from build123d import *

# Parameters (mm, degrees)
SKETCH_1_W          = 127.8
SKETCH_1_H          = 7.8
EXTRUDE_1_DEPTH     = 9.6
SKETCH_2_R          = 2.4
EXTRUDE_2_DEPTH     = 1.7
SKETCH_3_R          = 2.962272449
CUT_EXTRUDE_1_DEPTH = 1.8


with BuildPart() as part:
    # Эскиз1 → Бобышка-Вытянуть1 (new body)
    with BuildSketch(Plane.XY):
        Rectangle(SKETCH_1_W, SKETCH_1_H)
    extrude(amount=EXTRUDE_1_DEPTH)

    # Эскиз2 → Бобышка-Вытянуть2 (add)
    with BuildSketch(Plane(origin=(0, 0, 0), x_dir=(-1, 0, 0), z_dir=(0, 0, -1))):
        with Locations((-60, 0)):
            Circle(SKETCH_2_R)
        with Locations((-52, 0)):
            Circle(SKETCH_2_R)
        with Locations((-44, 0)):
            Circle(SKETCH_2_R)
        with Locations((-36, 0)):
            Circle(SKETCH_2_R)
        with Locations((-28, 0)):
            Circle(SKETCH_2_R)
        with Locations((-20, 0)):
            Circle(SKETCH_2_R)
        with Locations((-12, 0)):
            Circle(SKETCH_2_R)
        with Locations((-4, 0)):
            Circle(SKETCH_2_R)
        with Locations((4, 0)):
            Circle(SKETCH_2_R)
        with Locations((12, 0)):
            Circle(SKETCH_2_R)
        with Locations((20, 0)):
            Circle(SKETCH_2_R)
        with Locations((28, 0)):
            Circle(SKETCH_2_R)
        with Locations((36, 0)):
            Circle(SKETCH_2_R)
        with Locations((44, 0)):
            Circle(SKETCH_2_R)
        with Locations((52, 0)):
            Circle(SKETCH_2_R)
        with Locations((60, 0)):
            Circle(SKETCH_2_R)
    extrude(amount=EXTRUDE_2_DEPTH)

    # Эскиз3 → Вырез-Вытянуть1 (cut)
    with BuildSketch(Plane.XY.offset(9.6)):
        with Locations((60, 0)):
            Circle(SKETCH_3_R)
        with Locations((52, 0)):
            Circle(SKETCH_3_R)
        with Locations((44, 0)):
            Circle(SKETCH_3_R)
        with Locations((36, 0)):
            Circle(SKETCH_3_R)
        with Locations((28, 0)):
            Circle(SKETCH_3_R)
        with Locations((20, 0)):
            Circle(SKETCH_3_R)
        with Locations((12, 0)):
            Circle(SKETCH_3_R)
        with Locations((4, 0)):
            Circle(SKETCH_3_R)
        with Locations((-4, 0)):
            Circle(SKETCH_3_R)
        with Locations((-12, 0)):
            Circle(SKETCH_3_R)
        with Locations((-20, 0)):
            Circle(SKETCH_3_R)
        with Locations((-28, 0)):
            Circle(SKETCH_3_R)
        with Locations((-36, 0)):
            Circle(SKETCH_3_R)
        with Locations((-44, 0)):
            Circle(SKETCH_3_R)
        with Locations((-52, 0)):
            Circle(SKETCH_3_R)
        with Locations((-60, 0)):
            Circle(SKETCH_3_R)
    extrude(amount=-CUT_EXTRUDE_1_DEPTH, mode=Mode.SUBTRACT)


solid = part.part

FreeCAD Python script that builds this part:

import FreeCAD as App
import Part
import Sketcher
from FreeCAD import Vector
Q = App.Units.Quantity


def add_polygon(sketch, points):
    """Adds a closed chain of lines whose ends are joined by coincident constraints."""
    first, n = sketch.GeometryCount, len(points)
    for a, b in zip(points, points[1:] + points[:1]):
        sketch.addGeometry(Part.LineSegment(App.Vector(*a, 0), App.Vector(*b, 0)), False)
    for i in range(n):
        sketch.addConstraint(Sketcher.Constraint("Coincident", first + i, 2, first + (i + 1) % n, 1))

doc = App.newDocument("Part")
params = doc.addObject("Spreadsheet::Sheet", "Params")
for row, (alias, value) in enumerate([
    ("sketch1_width", "127.8 mm"),
    ("sketch1_height", "7.8 mm"),
    ("pad1_length", "9.6 mm"),
    ("sketch2_diameter", "4.8 mm"),
    ("pad2_length", "1.7 mm"),
    ("pocket1_length", "1.8 mm"),
], start=1):
    params.set(f"A{row}", alias)
    params.set(f"B{row}", "=" + value)
    params.setAlias(f"B{row}", alias)

body = doc.addObject("PartDesign::Body", "Body")

# Sketch on XY plane
sketch1 = body.newObject("Sketcher::SketchObject", "Sketch")
sketch1.AttachmentSupport = (doc.getObject("XY_Plane"), [""])
sketch1.MapMode = "FlatFace"
add_polygon(sketch1, [(-64, 4), (-64, -4), (64, -4), (64, 4)])  # lines 0-3
sketch1.addConstraint([
    Sketcher.Constraint("Vertical", 0),
    Sketcher.Constraint("Horizontal", 1),
    Sketcher.Constraint("Vertical", 2),
    Sketcher.Constraint("Horizontal", 3),
    Sketcher.Constraint("Symmetric", 0, 2, 2, 2, -1, 1),
    Sketcher.Constraint("DistanceX", 1, 1, 1, 2, Q("127.8 mm")),
    Sketcher.Constraint("DistanceY", 0, 2, 0, 1, Q("7.8 mm")),
])
sketch1.setExpression("Constraints[9]", "Params.sketch1_width")
sketch1.setExpression("Constraints[10]", "Params.sketch1_height")
pad1 = body.newObject("PartDesign::Pad", "Pad")
pad1.Profile = sketch1
pad1.setExpression("Length", "Params.pad1_length")

# Sketch on XY plane
sketch2 = body.newObject("Sketcher::SketchObject", "Sketch001")
sketch2.AttachmentSupport = (doc.getObject("XY_Plane"), [""])
sketch2.MapMode = "FlatFace"
sketch2.addGeometry([
    Part.Circle(Vector(60, 0, 0), Vector(0, 0, 1), 2.4),  # 0
    Part.Circle(Vector(52, 0, 0), Vector(0, 0, 1), 2.4),  # 1
    Part.Circle(Vector(44, 0, 0), Vector(0, 0, 1), 2.4),  # 2
    Part.Circle(Vector(36, 0, 0), Vector(0, 0, 1), 2.4),  # 3
    Part.Circle(Vector(28, 0, 0), Vector(0, 0, 1), 2.4),  # 4
    Part.Circle(Vector(20, 0, 0), Vector(0, 0, 1), 2.4),  # 5
    Part.Circle(Vector(12, 0, 0), Vector(0, 0, 1), 2.4),  # 6
    Part.Circle(Vector(4, 0, 0), Vector(0, 0, 1), 2.4),  # 7
    Part.Circle(Vector(-4, 0, 0), Vector(0, 0, 1), 2.4),  # 8
    Part.Circle(Vector(-12, 0, 0), Vector(0, 0, 1), 2.4),  # 9
    Part.Circle(Vector(-20, 0, 0), Vector(0, 0, 1), 2.4),  # 10
    Part.Circle(Vector(-28, 0, 0), Vector(0, 0, 1), 2.4),  # 11
    Part.Circle(Vector(-36, 0, 0), Vector(0, 0, 1), 2.4),  # 12
    Part.Circle(Vector(-44, 0, 0), Vector(0, 0, 1), 2.4),  # 13
    Part.Circle(Vector(-52, 0, 0), Vector(0, 0, 1), 2.4),  # 14
    Part.Circle(Vector(-60, 0, 0), Vector(0, 0, 1), 2.4),  # 15
], False)
sketch2.addConstraint([
    Sketcher.Constraint("Equal", 0, 1),
    Sketcher.Constraint("Equal", 1, 2),
    Sketcher.Constraint("Equal", 2, 3),
    Sketcher.Constraint("Equal", 3, 4),
    Sketcher.Constraint("Equal", 4, 5),
    Sketcher.Constraint("Equal", 5, 6),
    Sketcher.Constraint("Equal", 6, 7),
    Sketcher.Constraint("Equal", 7, 8),
    Sketcher.Constraint("Equal", 8, 9),
    Sketcher.Constraint("Equal", 9, 10),
    Sketcher.Constraint("Equal", 10, 11),
    Sketcher.Constraint("Equal", 11, 12),
    Sketcher.Constraint("Equal", 12, 13),
    Sketcher.Constraint("Equal", 13, 14),
    Sketcher.Constraint("Equal", 14, 15),
    Sketcher.Constraint("Symmetric", 7, 3, 8, 3, -1, 1),
    Sketcher.Constraint("Symmetric", 6, 3, 9, 3, -1, 1),
    Sketcher.Constraint("Symmetric", 5, 3, 10, 3, -1, 1),
    Sketcher.Constraint("Symmetric", 4, 3, 11, 3, -1, 1),
    Sketcher.Constraint("Symmetric", 3, 3, 12, 3, -1, 1),
    Sketcher.Constraint("Symmetric", 2, 3, 13, 3, -1, 1),
    Sketcher.Constraint("Symmetric", 1, 3, 14, 3, -1, 1),
    Sketcher.Constraint("Symmetric", 0, 3, 15, 3, -1, 1),
    Sketcher.Constraint("PointOnObject", 0, 3, -1),
    Sketcher.Constraint("PointOnObject", 1, 3, -1),
    Sketcher.Constraint("PointOnObject", 2, 3, -1),
    Sketcher.Constraint("PointOnObject", 3, 3, -1),
    Sketcher.Constraint("PointOnObject", 4, 3, -1),
    Sketcher.Constraint("PointOnObject", 5, 3, -1),
    Sketcher.Constraint("PointOnObject", 6, 3, -1),
    Sketcher.Constraint("PointOnObject", 7, 3, -1),
    Sketcher.Constraint("Diameter", 0, Q("4.8 mm")),
    Sketcher.Constraint("DistanceX", -1, 1, 0, 3, Q("60 mm")),
    Sketcher.Constraint("DistanceX", -1, 1, 1, 3, Q("52 mm")),
    Sketcher.Constraint("DistanceX", -1, 1, 2, 3, Q("44 mm")),
    Sketcher.Constraint("DistanceX", -1, 1, 3, 3, Q("36 mm")),
    Sketcher.Constraint("DistanceX", -1, 1, 4, 3, Q("28 mm")),
    Sketcher.Constraint("DistanceX", -1, 1, 5, 3, Q("20 mm")),
    Sketcher.Constraint("DistanceX", -1, 1, 6, 3, Q("12 mm")),
    Sketcher.Constraint("DistanceX", -1, 1, 7, 3, Q("4 mm")),
])
sketch2.setExpression("Constraints[31]", "Params.sketch2_diameter")
pad2 = body.newObject("PartDesign::Pad", "Pad001")
pad2.Profile = sketch2
pad2.setExpression("Length", "Params.pad2_length")
pad2.Reversed = True

# Sketch on XY plane
sketch3 = body.newObject("Sketcher::SketchObject", "Sketch002")
sketch3.AttachmentSupport = (doc.getObject("XY_Plane"), [""])
sketch3.MapMode = "FlatFace"
sketch3.AttachmentOffset = App.Placement(Vector(0, 0, 9.6), App.Rotation())
sketch3.addGeometry([
    Part.Circle(Vector(60, 0, 0), Vector(0, 0, 1), 3),  # 0
    Part.Circle(Vector(52, 0, 0), Vector(0, 0, 1), 3),  # 1
    Part.Circle(Vector(44, 0, 0), Vector(0, 0, 1), 3),  # 2
    Part.Circle(Vector(36, 0, 0), Vector(0, 0, 1), 3),  # 3
    Part.Circle(Vector(28, 0, 0), Vector(0, 0, 1), 3),  # 4
    Part.Circle(Vector(20, 0, 0), Vector(0, 0, 1), 3),  # 5
    Part.Circle(Vector(12, 0, 0), Vector(0, 0, 1), 3),  # 6
    Part.Circle(Vector(4, 0, 0), Vector(0, 0, 1), 3),  # 7
    Part.Circle(Vector(-4, 0, 0), Vector(0, 0, 1), 3),  # 8
    Part.Circle(Vector(-12, 0, 0), Vector(0, 0, 1), 3),  # 9
    Part.Circle(Vector(-20, 0, 0), Vector(0, 0, 1), 3),  # 10
    Part.Circle(Vector(-28, 0, 0), Vector(0, 0, 1), 3),  # 11
    Part.Circle(Vector(-36, 0, 0), Vector(0, 0, 1), 3),  # 12
    Part.Circle(Vector(-44, 0, 0), Vector(0, 0, 1), 3),  # 13
    Part.Circle(Vector(-52, 0, 0), Vector(0, 0, 1), 3),  # 14
    Part.Circle(Vector(-60, 0, 0), Vector(0, 0, 1), 3),  # 15
], False)
sketch3.addConstraint([
    Sketcher.Constraint("Equal", 0, 1),
    Sketcher.Constraint("Equal", 1, 2),
    Sketcher.Constraint("Equal", 2, 3),
    Sketcher.Constraint("Equal", 3, 4),
    Sketcher.Constraint("Equal", 4, 5),
    Sketcher.Constraint("Equal", 5, 6),
    Sketcher.Constraint("Equal", 6, 7),
    Sketcher.Constraint("Equal", 7, 8),
    Sketcher.Constraint("Equal", 8, 9),
    Sketcher.Constraint("Equal", 9, 10),
    Sketcher.Constraint("Equal", 10, 11),
    Sketcher.Constraint("Equal", 11, 12),
    Sketcher.Constraint("Equal", 12, 13),
    Sketcher.Constraint("Equal", 13, 14),
    Sketcher.Constraint("Equal", 14, 15),
    Sketcher.Constraint("Symmetric", 7, 3, 8, 3, -1, 1),
    Sketcher.Constraint("Symmetric", 6, 3, 9, 3, -1, 1),
    Sketcher.Constraint("Symmetric", 5, 3, 10, 3, -1, 1),
    Sketcher.Constraint("Symmetric", 4, 3, 11, 3, -1, 1),
    Sketcher.Constraint("Symmetric", 3, 3, 12, 3, -1, 1),
    Sketcher.Constraint("Symmetric", 2, 3, 13, 3, -1, 1),
    Sketcher.Constraint("Symmetric", 1, 3, 14, 3, -1, 1),
    Sketcher.Constraint("Symmetric", 0, 3, 15, 3, -1, 1),
    Sketcher.Constraint("PointOnObject", 0, 3, -1),
    Sketcher.Constraint("PointOnObject", 1, 3, -1),
    Sketcher.Constraint("PointOnObject", 2, 3, -1),
    Sketcher.Constraint("PointOnObject", 3, 3, -1),
    Sketcher.Constraint("PointOnObject", 4, 3, -1),
    Sketcher.Constraint("PointOnObject", 5, 3, -1),
    Sketcher.Constraint("PointOnObject", 6, 3, -1),
    Sketcher.Constraint("PointOnObject", 7, 3, -1),
    Sketcher.Constraint("DistanceX", -1, 1, 0, 3, Q("60 mm")),
    Sketcher.Constraint("DistanceX", -1, 1, 1, 3, Q("52 mm")),
    Sketcher.Constraint("DistanceX", -1, 1, 2, 3, Q("44 mm")),
    Sketcher.Constraint("DistanceX", -1, 1, 3, 3, Q("36 mm")),
    Sketcher.Constraint("DistanceX", -1, 1, 4, 3, Q("28 mm")),
    Sketcher.Constraint("DistanceX", -1, 1, 5, 3, Q("20 mm")),
    Sketcher.Constraint("DistanceX", -1, 1, 6, 3, Q("12 mm")),
    Sketcher.Constraint("DistanceX", -1, 1, 7, 3, Q("4 mm")),
    Sketcher.Constraint("Diameter", 0, Q("5.924545 mm")),
])
pocket1 = body.newObject("PartDesign::Pocket", "Pocket")
pocket1.Profile = sketch3
pocket1.setExpression("Length", "Params.pocket1_length")

doc.recompute()
